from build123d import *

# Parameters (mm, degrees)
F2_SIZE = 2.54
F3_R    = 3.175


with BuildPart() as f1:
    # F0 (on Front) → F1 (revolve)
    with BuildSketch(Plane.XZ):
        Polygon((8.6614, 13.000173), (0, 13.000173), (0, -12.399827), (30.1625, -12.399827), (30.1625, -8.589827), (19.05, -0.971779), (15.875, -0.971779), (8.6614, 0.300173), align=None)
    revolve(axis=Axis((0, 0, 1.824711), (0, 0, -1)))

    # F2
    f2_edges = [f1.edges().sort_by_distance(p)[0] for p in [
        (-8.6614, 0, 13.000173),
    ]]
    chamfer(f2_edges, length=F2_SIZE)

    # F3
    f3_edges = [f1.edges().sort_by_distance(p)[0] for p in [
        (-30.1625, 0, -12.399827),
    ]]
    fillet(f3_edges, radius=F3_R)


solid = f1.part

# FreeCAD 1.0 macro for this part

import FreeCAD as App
import Part
import Sketcher
Q = App.Units.Quantity


def edges_at(feature, points):
    """Names of the edges that pass closest to the given points."""
    edges = feature.Shape.Edges
    near = lambda p: min(range(len(edges)), key=lambda i: edges[i].distToShape(Part.Vertex(*p))[0])
    return sorted({f"Edge{near(p) + 1}" for p in points})


def add_polygon(sketch, points):
    """Adds a closed chain of lines whose ends are joined by coincident constraints."""
    first, n = sketch.GeometryCount, len(points)
    for a, b in zip(points, points[1:] + points[:1]):
        sketch.addGeometry(Part.LineSegment(App.Vector(*a, 0), App.Vector(*b, 0)), False)
    for i in range(n):
        sketch.addConstraint(Sketcher.Constraint("Coincident", first + i, 2, first + (i + 1) % n, 1))

doc = App.newDocument("Part")
body = doc.addObject("PartDesign::Body", "Body")

# Sketch on XZ plane
sketch1 = doc.addObject("Sketcher::SketchObject", "Sketch")
body.addObject(sketch1)
sketch1.AttachmentSupport = (doc.XZ_Plane, [""])
sketch1.MapMode = "FlatFace"
add_polygon(sketch1, [(8.6614, 13.000173), (0, 13.000173), (0, -12.399827), (30.1625, -12.399827), (30.1625, -8.589827), (19.05, -0.971779), (15.875, -0.971779), (8.6614, 0.300173)])  # lines 0-7
sketch1.addConstraint(Sketcher.Constraint("Horizontal", 0))
sketch1.addConstraint(Sketcher.Constraint("Vertical", 1))
sketch1.addConstraint(Sketcher.Constraint("Horizontal", 2))
sketch1.addConstraint(Sketcher.Constraint("Vertical", 3))
sketch1.addConstraint(Sketcher.Constraint("Horizontal", 5))
sketch1.addConstraint(Sketcher.Constraint("Vertical", 7))
sketch1.addConstraint(Sketcher.Constraint("PointOnObject", 0, 2, -2))
sketch1.addConstraint(Sketcher.Constraint("DistanceY", 1, 2, 1, 1, Q("1 in")))
sketch1.addConstraint(Sketcher.Constraint("DistanceY", 7, 1, 7, 2, Q("0.5 in")))
sketch1.addConstraint(Sketcher.Constraint("Angle", 6, Q("170.000002 deg")))
sketch1.addConstraint(Sketcher.Constraint("DistanceY", 3, 1, 3, 2, Q("0.15 in")))
sketch1.addConstraint(Sketcher.Constraint("DistanceX", 0, 2, 0, 1, Q("0.341 in")))
sketch1.addConstraint(Sketcher.Constraint("DistanceX", 2, 1, 2, 2, Q("1.1875 in")))
sketch1.addConstraint(Sketcher.Constraint("DistanceX", 5, 2, 5, 1, Q("0.125 in")))
sketch1.addConstraint(Sketcher.Constraint("DistanceX", -1, 1, 4, 2, Q("0.75 in")))
sketch1.addConstraint(Sketcher.Constraint("DistanceY", 4, 2, -1, 1, 0.971779))
revolution = doc.addObject("PartDesign::Revolution", "Revolution")
body.addObject(revolution)
revolution.Profile = sketch1
revolution.ReferenceAxis = (sketch1, ["V_Axis"])
revolution.Angle = 360
doc.recompute()

chamfer = doc.addObject("PartDesign::Chamfer", "Chamfer")
body.addObject(chamfer)
chamfer.Base = (revolution, edges_at(revolution, [(-8.661, 0, 13)]))
chamfer.Size = Q("0.1 in")
doc.recompute()

fillet = doc.addObject("PartDesign::Fillet", "Fillet")
body.addObject(fillet)
fillet.Base = (chamfer, edges_at(chamfer, [(-30.163, 0, -12.4)]))
fillet.Radius = Q("0.125 in")

doc.recompute()
